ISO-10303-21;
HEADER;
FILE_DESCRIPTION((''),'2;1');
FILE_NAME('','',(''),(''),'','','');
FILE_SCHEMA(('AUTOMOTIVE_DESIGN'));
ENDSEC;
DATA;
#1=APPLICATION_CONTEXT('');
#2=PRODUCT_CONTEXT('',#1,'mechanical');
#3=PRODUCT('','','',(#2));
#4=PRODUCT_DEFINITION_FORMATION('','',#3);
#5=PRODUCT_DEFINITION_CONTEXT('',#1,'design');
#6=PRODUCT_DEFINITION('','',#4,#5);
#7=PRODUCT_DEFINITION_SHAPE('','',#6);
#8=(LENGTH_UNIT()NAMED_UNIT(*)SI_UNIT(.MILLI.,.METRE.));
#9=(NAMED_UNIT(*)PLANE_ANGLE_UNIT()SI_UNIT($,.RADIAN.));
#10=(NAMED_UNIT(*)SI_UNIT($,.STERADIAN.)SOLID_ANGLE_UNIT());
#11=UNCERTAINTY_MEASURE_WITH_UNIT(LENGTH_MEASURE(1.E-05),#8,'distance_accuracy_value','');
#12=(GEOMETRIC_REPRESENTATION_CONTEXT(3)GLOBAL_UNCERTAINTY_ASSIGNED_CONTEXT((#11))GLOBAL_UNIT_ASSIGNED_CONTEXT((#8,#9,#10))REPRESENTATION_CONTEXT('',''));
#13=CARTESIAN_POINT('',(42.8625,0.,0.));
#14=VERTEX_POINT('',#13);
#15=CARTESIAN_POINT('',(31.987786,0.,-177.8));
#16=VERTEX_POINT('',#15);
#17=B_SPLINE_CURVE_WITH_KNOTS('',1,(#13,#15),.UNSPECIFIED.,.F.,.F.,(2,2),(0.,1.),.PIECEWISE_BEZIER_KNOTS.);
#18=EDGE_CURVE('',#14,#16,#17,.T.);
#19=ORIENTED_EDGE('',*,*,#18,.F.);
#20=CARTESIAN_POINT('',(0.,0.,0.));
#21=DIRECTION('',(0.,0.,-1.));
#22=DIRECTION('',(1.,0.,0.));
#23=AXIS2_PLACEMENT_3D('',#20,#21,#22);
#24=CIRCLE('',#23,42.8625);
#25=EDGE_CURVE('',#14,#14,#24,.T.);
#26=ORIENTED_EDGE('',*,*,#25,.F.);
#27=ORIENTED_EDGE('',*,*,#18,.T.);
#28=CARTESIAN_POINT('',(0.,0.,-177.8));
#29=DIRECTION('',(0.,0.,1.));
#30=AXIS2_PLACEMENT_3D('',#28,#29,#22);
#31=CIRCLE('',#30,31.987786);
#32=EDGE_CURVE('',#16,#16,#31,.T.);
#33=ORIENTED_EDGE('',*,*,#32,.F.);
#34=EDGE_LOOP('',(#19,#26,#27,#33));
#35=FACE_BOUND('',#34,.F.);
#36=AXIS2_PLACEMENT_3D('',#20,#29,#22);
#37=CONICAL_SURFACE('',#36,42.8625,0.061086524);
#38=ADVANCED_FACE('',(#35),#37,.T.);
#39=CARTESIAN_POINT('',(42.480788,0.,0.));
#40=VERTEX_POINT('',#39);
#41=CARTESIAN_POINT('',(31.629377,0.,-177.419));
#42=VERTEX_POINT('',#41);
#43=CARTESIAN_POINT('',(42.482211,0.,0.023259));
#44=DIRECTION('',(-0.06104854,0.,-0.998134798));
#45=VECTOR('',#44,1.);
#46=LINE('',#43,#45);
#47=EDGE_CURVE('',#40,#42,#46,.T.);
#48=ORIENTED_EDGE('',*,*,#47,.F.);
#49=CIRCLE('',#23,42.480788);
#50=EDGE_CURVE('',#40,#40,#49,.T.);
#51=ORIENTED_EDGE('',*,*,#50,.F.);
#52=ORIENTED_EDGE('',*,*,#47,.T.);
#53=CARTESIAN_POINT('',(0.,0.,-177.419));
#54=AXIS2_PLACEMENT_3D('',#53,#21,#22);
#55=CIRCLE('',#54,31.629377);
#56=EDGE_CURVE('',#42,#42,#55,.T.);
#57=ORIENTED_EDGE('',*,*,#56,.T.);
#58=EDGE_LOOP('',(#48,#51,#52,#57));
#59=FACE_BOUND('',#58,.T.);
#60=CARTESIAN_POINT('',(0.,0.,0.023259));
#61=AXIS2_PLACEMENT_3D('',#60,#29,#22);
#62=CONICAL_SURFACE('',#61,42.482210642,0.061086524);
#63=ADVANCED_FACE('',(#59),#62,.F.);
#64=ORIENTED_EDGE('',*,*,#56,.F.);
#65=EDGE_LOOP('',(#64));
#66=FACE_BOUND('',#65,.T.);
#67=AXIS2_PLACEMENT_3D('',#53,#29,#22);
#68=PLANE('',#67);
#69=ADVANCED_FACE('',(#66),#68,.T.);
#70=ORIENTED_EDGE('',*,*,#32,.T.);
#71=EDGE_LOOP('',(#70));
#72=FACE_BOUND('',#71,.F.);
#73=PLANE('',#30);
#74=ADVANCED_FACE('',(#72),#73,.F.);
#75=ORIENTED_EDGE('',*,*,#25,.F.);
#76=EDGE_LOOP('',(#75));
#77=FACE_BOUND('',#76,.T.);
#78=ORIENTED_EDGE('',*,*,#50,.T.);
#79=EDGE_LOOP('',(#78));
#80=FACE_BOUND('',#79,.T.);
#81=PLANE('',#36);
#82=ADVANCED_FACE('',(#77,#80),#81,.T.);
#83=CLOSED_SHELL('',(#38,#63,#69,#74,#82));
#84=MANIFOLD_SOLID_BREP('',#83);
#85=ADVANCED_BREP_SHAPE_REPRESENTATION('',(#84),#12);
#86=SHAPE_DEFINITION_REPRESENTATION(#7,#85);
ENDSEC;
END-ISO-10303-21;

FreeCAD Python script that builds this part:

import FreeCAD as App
import Part
import Sketcher

V = App.Vector
Q = App.Units.Quantity


def faces_at(feature, points):
    """Names of the faces that lie closest to the given points."""
    faces = feature.Shape.Faces
    near = lambda p: min(range(len(faces)), key=lambda i: faces[i].distToShape(Part.Vertex(*p))[0])
    return sorted({f"Face{near(p) + 1}" for p in points})

doc = App.newDocument("Part")
body = doc.addObject("PartDesign::Body", "Body")

# Sketch on XY plane
sketch1 = body.newObject("Sketcher::SketchObject", "Sketch")
sketch1.AttachmentSupport = (doc.getObject("XY_Plane"), [""])
sketch1.MapMode = "FlatFace"
sketch1.addGeometry(Part.Circle(V(0, 0, 0), V(0, 0, 1), 43), False)
sketch1.addConstraint([
    Sketcher.Constraint("Coincident", 0, 3, -1, 1),
    Sketcher.Constraint("Diameter", 0, Q("3.375 in")),
])
pad1 = body.newObject("PartDesign::Pad", "Pad")
pad1.Profile = sketch1
pad1.Length = Q("7 in")
pad1.Reversed = True
pad1.TaperAngle = -3.5
doc.recompute()

thickness = body.newObject("PartDesign::Thickness", "Thickness")
thickness.Base = (pad1, faces_at(pad1, [(0, 0, 0)]))
thickness.Value = Q("0.015 in")
thickness.Reversed = True
thickness.Join = "Intersection"

doc.recompute()
